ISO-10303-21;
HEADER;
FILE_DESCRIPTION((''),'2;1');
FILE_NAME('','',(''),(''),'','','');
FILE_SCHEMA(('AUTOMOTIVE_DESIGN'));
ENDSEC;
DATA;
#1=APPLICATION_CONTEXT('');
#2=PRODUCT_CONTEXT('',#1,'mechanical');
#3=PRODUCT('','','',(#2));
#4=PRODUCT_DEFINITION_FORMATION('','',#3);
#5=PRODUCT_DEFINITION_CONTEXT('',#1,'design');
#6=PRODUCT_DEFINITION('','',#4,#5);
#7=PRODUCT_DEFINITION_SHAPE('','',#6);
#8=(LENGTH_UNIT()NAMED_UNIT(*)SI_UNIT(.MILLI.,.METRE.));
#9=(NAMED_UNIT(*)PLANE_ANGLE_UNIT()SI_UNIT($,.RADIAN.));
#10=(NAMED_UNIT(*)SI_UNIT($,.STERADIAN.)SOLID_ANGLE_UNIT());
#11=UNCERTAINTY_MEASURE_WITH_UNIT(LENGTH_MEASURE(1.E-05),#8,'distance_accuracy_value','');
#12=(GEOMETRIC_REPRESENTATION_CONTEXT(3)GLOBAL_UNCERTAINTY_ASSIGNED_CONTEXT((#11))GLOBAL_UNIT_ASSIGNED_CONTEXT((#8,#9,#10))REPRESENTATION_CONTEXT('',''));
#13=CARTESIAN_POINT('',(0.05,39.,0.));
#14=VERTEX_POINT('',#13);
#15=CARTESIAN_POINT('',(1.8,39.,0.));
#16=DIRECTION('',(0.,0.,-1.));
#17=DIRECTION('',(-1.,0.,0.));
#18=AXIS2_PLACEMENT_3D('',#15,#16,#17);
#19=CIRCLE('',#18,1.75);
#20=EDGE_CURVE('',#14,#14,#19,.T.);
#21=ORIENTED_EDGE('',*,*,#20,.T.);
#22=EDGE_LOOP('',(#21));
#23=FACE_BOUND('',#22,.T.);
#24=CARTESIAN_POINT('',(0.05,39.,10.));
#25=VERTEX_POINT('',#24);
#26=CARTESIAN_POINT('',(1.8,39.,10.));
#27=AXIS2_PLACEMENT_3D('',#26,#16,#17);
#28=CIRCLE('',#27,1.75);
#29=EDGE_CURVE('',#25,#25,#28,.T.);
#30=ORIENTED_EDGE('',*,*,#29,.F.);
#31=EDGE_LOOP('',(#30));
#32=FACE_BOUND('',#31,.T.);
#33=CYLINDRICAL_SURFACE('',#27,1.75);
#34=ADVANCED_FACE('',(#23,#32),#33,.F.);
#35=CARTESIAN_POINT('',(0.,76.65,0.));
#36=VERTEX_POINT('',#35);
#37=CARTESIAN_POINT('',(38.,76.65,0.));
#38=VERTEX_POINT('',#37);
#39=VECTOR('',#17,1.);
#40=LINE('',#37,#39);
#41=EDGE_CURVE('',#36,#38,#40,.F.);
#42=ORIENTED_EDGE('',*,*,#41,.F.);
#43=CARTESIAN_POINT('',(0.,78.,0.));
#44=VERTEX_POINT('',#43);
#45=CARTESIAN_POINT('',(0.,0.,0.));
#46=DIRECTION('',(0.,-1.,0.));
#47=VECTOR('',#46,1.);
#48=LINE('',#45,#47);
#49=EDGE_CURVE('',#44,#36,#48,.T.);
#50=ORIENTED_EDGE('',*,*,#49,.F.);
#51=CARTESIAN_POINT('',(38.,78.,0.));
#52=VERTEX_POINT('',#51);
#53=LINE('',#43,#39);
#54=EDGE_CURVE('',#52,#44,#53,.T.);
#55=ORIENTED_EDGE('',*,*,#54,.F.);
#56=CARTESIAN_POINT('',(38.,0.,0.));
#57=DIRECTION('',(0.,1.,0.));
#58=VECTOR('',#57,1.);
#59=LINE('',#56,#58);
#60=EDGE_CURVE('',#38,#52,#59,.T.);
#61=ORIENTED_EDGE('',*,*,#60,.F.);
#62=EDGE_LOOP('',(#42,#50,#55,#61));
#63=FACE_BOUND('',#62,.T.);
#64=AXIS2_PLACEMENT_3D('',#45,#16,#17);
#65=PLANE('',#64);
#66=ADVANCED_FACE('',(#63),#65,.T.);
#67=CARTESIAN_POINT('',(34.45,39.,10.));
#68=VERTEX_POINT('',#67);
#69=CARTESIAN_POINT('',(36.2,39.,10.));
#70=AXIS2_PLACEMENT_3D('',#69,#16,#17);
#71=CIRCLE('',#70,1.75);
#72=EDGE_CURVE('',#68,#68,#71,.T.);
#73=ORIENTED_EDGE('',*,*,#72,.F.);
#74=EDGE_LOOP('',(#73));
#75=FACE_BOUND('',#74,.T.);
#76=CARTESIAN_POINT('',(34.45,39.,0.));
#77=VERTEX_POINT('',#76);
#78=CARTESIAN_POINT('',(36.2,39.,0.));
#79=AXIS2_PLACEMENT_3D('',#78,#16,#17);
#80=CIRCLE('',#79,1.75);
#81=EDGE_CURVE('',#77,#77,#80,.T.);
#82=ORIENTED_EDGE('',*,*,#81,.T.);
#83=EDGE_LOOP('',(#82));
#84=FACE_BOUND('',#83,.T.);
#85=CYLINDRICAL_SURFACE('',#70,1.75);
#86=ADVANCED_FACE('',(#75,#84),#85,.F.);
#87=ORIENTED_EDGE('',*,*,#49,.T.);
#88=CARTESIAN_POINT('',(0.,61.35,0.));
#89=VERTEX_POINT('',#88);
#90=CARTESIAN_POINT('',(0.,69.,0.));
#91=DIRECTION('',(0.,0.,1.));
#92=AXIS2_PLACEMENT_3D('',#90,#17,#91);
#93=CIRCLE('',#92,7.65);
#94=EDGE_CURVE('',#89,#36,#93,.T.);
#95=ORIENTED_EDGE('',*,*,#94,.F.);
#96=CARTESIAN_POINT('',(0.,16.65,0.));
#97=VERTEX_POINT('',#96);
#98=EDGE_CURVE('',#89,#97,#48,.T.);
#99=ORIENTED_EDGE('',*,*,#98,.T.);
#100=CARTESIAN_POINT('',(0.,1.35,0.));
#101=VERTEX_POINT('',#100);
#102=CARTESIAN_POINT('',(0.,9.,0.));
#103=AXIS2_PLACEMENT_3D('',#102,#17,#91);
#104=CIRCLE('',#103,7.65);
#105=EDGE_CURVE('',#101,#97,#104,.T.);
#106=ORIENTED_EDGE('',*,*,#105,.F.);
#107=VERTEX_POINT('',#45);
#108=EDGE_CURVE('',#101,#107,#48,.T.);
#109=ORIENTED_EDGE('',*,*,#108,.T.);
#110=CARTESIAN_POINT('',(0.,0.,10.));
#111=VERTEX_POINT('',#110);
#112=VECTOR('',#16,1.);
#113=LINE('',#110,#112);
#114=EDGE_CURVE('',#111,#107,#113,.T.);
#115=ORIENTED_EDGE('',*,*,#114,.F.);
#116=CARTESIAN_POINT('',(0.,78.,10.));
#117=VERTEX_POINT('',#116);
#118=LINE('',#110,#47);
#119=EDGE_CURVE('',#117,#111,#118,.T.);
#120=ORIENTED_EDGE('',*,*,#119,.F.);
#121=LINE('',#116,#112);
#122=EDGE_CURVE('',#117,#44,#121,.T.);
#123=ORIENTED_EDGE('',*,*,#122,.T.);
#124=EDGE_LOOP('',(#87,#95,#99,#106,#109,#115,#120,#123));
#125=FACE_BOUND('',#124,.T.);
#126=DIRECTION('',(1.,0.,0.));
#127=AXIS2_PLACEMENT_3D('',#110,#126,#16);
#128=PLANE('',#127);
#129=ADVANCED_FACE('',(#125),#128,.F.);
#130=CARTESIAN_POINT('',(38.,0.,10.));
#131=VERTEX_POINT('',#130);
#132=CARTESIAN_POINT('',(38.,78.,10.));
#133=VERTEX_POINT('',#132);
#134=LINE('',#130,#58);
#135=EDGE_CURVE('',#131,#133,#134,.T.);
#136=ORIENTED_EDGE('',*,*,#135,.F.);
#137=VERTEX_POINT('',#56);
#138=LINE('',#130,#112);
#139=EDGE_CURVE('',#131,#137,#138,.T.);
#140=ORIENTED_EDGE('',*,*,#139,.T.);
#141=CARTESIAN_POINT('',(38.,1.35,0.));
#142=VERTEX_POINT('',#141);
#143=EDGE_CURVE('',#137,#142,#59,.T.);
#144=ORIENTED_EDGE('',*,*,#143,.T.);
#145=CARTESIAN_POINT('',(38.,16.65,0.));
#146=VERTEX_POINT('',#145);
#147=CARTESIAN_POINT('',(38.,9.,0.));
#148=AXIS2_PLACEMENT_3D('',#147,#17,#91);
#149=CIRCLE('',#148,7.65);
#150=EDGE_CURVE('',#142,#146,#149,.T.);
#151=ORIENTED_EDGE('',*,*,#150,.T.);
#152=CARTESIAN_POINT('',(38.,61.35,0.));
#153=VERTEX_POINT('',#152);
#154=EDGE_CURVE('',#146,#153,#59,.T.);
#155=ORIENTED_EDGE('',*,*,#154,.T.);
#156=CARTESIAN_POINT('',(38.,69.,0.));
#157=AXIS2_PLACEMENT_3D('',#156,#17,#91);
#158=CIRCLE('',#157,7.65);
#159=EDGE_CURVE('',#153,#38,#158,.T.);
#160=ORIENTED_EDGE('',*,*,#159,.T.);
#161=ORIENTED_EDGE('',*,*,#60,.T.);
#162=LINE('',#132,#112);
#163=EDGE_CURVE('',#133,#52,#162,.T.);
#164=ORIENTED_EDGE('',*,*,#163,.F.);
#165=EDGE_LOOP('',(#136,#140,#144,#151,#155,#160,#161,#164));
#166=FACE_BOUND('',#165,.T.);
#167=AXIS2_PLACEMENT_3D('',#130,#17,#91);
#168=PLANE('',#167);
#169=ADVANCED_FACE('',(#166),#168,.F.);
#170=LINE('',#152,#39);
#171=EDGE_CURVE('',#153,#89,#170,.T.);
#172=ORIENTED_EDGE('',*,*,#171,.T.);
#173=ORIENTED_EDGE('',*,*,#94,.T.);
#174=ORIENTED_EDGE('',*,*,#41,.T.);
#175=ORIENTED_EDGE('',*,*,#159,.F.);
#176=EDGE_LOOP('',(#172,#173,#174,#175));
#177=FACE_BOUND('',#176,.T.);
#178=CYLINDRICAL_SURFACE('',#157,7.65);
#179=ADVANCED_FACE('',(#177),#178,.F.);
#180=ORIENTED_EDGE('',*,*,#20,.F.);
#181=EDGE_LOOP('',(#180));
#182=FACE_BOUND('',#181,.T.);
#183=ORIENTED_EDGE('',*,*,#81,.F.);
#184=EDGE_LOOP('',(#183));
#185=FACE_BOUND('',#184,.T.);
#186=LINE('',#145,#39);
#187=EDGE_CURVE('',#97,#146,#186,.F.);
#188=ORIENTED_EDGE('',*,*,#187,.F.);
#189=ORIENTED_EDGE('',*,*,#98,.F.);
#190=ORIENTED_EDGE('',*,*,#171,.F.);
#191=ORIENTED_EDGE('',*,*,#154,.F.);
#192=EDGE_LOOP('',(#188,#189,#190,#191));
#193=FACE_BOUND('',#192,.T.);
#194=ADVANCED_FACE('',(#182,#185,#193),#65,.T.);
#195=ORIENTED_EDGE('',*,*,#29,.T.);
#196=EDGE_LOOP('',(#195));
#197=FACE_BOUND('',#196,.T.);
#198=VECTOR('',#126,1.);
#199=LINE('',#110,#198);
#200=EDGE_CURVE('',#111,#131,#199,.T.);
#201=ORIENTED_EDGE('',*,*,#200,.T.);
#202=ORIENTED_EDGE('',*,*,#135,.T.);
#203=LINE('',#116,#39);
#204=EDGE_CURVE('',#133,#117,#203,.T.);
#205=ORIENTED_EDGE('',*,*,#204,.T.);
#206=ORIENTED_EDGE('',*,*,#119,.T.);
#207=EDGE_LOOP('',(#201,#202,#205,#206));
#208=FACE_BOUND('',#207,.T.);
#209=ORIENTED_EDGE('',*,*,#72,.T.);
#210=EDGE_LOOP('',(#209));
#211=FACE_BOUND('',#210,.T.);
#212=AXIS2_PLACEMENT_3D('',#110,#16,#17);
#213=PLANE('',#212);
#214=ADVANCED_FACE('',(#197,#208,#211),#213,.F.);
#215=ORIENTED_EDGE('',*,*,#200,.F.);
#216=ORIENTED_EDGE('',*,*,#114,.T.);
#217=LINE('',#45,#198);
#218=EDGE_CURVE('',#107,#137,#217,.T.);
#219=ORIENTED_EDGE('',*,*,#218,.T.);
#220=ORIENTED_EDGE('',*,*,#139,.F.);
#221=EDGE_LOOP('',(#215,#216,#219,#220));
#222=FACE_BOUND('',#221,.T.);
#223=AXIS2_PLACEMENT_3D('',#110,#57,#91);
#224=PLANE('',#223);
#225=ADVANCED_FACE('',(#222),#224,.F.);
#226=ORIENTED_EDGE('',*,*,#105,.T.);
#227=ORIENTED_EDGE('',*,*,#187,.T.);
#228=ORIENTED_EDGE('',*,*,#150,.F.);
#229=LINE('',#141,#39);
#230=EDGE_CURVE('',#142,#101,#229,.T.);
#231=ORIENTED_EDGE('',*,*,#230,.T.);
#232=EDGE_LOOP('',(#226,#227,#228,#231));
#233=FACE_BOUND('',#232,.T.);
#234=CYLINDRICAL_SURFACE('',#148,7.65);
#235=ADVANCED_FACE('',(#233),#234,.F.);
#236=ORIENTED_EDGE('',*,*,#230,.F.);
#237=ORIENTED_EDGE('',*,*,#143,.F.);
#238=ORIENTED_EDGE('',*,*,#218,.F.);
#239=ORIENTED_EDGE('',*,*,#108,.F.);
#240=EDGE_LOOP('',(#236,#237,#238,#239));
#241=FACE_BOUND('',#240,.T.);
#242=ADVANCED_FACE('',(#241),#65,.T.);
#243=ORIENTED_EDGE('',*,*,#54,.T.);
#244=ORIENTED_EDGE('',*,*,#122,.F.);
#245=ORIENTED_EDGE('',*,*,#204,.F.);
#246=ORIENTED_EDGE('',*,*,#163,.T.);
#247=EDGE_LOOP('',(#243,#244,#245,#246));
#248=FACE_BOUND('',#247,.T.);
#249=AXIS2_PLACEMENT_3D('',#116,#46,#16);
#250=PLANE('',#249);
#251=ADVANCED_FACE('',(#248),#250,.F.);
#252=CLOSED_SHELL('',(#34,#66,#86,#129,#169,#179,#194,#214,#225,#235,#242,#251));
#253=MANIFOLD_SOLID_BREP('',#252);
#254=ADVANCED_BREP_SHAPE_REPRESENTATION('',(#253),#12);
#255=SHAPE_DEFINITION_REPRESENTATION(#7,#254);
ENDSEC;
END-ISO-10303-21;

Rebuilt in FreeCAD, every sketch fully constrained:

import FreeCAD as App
import Part
import Sketcher


def add_polygon(sketch, points):
    """Adds a closed chain of lines whose ends are joined by coincident constraints."""
    first, n = sketch.GeometryCount, len(points)
    for a, b in zip(points, points[1:] + points[:1]):
        sketch.addGeometry(Part.LineSegment(App.Vector(*a, 0), App.Vector(*b, 0)), False)
    for i in range(n):
        sketch.addConstraint(Sketcher.Constraint("Coincident", first + i, 2, first + (i + 1) % n, 1))

doc = App.newDocument("Part")
body = doc.addObject("PartDesign::Body", "Body")

sketch1 = doc.addObject("Sketcher::SketchObject", "Sketch")
body.addObject(sketch1)
sketch1.AttachmentSupport = (doc.XY_Plane, [""])
sketch1.MapMode = "FlatFace"
add_polygon(sketch1, [(0, 78), (0, 0), (38, 0), (38, 78)])
sketch1.addConstraint(Sketcher.Constraint("Vertical", 0))
sketch1.addConstraint(Sketcher.Constraint("Horizontal", 1))
sketch1.addConstraint(Sketcher.Constraint("Vertical", 2))
sketch1.addConstraint(Sketcher.Constraint("Horizontal", 3))
sketch1.addConstraint(Sketcher.Constraint("Coincident", 0, 2, -1, 1))
sketch1.addConstraint(Sketcher.Constraint("DistanceX", 1, 1, 1, 2, 38.0))
sketch1.addConstraint(Sketcher.Constraint("DistanceY", 0, 2, 0, 1, 78.0))
pad1 = doc.addObject("PartDesign::Pad", "Pad")
body.addObject(pad1)
pad1.Profile = sketch1
pad1.Length = 10

sketch2 = doc.addObject("Sketcher::SketchObject", "Sketch001")
body.addObject(sketch2)
sketch2.AttachmentSupport = (doc.YZ_Plane, [""])
sketch2.MapMode = "FlatFace"
sketch2.addGeometry(Part.Circle(App.Vector(69, 0, 0), App.Vector(0, 0, 1), 8), False)
sketch2.addGeometry(Part.Circle(App.Vector(9, 0, 0), App.Vector(0, 0, 1), 8), False)
sketch2.addConstraint(Sketcher.Constraint("Equal", 0, 1))
sketch2.addConstraint(Sketcher.Constraint("PointOnObject", 0, 3, -1))
sketch2.addConstraint(Sketcher.Constraint("PointOnObject", 1, 3, -1))
sketch2.addConstraint(Sketcher.Constraint("Diameter", 0, 15.3))
sketch2.addConstraint(Sketcher.Constraint("DistanceX", -1, 1, 0, 3, 69.0))
sketch2.addConstraint(Sketcher.Constraint("DistanceX", -1, 1, 1, 3, 9.0))
pocket1 = doc.addObject("PartDesign::Pocket", "Pocket")
body.addObject(pocket1)
pocket1.Profile = sketch2
pocket1.Type = "ThroughAll"
pocket1.Reversed = True

sketch3 = doc.addObject("Sketcher::SketchObject", "Sketch002")
body.addObject(sketch3)
sketch3.AttachmentSupport = (doc.XY_Plane, [""])
sketch3.MapMode = "FlatFace"
sketch3.addGeometry(Part.Circle(App.Vector(36.2, 39, 0), App.Vector(0, 0, 1), 1.8), False)
sketch3.addGeometry(Part.Circle(App.Vector(1.8, 39, 0), App.Vector(0, 0, 1), 1.8), False)
sketch3.addConstraint(Sketcher.Constraint("Equal", 0, 1))
sketch3.addConstraint(Sketcher.Constraint("Horizontal", 0, 3, 1, 3))
sketch3.addConstraint(Sketcher.Constraint("Diameter", 0, 3.5))
sketch3.addConstraint(Sketcher.Constraint("DistanceY", -1, 1, 0, 3, 39.0))
sketch3.addConstraint(Sketcher.Constraint("DistanceX", -1, 1, 0, 3, 36.2))
sketch3.addConstraint(Sketcher.Constraint("DistanceX", -1, 1, 1, 3, 1.8))
pocket2 = doc.addObject("PartDesign::Pocket", "Pocket001")
body.addObject(pocket2)
pocket2.Profile = sketch3
pocket2.Type = "ThroughAll"
pocket2.Reversed = True

doc.recompute()
